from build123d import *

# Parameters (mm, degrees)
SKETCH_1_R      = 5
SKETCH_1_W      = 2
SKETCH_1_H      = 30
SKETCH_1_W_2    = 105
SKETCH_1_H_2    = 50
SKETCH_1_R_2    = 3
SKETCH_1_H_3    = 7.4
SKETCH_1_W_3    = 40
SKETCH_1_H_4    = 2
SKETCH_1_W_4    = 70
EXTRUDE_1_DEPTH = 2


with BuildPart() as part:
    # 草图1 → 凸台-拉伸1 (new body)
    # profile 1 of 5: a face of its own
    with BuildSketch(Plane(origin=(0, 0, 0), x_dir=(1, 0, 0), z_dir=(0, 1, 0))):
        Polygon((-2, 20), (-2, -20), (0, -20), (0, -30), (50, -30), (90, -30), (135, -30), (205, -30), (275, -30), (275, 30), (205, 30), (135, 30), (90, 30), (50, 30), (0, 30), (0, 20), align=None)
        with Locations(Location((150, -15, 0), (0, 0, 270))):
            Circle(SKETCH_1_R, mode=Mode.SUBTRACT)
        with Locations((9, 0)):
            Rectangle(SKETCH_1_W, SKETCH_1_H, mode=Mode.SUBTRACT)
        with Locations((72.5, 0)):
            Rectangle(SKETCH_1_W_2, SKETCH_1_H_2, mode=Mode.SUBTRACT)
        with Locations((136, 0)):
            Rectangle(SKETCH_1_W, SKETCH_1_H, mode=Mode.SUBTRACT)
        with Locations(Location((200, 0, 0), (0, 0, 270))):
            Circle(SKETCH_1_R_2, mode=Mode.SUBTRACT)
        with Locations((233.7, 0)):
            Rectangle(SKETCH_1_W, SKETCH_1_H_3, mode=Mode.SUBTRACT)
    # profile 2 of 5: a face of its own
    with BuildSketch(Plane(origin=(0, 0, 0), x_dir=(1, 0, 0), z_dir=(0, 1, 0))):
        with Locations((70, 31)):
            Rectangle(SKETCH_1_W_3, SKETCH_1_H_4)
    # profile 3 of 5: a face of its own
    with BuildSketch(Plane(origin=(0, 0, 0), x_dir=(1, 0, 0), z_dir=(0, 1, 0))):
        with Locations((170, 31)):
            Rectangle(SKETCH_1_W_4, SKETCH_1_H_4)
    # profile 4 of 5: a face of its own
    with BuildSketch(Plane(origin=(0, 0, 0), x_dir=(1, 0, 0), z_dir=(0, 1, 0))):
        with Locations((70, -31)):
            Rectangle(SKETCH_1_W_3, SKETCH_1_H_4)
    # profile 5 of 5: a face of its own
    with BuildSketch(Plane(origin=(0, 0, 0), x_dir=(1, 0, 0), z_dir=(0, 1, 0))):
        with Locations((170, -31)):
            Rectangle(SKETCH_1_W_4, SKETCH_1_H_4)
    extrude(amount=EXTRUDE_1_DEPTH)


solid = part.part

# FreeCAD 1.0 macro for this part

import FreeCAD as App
import Part
import Sketcher
Q = App.Units.Quantity


def add_polygon(sketch, points):
    """Adds a closed chain of lines whose ends are joined by coincident constraints."""
    first, n = sketch.GeometryCount, len(points)
    for a, b in zip(points, points[1:] + points[:1]):
        sketch.addGeometry(Part.LineSegment(App.Vector(*a, 0), App.Vector(*b, 0)), False)
    for i in range(n):
        sketch.addConstraint(Sketcher.Constraint("Coincident", first + i, 2, first + (i + 1) % n, 1))

doc = App.newDocument("Part")
params = doc.addObject("Spreadsheet::Sheet", "Params")
for row, (alias, value) in enumerate([
    ("sketch1_diameter", "10 mm"),
    ("sketch1_diameter2", "6 mm"),
    ("sketch1_width", "2 mm"),
    ("sketch1_width2", "50 mm"),
    ("sketch1_width3", "40 mm"),
    ("pad1_length", "2 mm"),
], start=1):
    params.set(f"A{row}", alias)
    params.set(f"B{row}", "=" + value)
    params.setAlias(f"B{row}", alias)

body = doc.addObject("PartDesign::Body", "Body")

# Sketch on XZ plane
sketch1 = body.newObject("Sketcher::SketchObject", "Sketch")
sketch1.AttachmentSupport = (doc.getObject("XZ_Plane"), [""])
sketch1.MapMode = "FlatFace"
add_polygon(sketch1, [(-2, -20), (-2, 20), (0, 20), (0, 30), (50, 30), (50, 32), (90, 32), (90, 30), (135, 30), (135, 32), (205, 32), (205, 30), (275, 30), (275, -30), (205, -30), (205, -32), (135, -32), (135, -30), (90, -30), (90, -32), (50, -32), (50, -30), (0, -30), (0, -20)])  # lines 0-23
sketch1.addGeometry(Part.Circle(App.Vector(150, 15, 0), App.Vector(0, 0, 1), 5), False)  # 24
add_polygon(sketch1, [(10, 15), (8, 15), (8, -15), (10, -15)])  # lines 25-28
add_polygon(sketch1, [(125, 25), (20, 25), (20, -25), (125, -25)])  # lines 29-32
add_polygon(sketch1, [(137, 15), (135, 15), (135, -15), (137, -15)])  # lines 33-36
sketch1.addGeometry(Part.Circle(App.Vector(200, 0, 0), App.Vector(0, 0, 1), 3), False)  # 37
add_polygon(sketch1, [(234.7, 3.7), (232.7, 3.7), (232.7, -3.7), (234.7, -3.7)])  # lines 38-41
sketch1.addConstraint([
    Sketcher.Constraint("Vertical", 0),
    Sketcher.Constraint("Horizontal", 1),
    Sketcher.Constraint("Vertical", 2),
    Sketcher.Constraint("Horizontal", 3),
    Sketcher.Constraint("Vertical", 4),
    Sketcher.Constraint("Horizontal", 5),
    Sketcher.Constraint("Vertical", 6),
    Sketcher.Constraint("Horizontal", 7),
    Sketcher.Constraint("Vertical", 8),
    Sketcher.Constraint("Horizontal", 9),
    Sketcher.Constraint("Vertical", 10),
    Sketcher.Constraint("Horizontal", 11),
    Sketcher.Constraint("Vertical", 12),
    Sketcher.Constraint("Horizontal", 13),
    Sketcher.Constraint("Vertical", 14),
    Sketcher.Constraint("Horizontal", 15),
    Sketcher.Constraint("Vertical", 16),
    Sketcher.Constraint("Horizontal", 17),
    Sketcher.Constraint("Vertical", 18),
    Sketcher.Constraint("Horizontal", 19),
    Sketcher.Constraint("Vertical", 20),
    Sketcher.Constraint("Horizontal", 21),
    Sketcher.Constraint("Vertical", 22),
    Sketcher.Constraint("Horizontal", 23),
    Sketcher.Constraint("Horizontal", 25),
    Sketcher.Constraint("Vertical", 26),
    Sketcher.Constraint("Horizontal", 27),
    Sketcher.Constraint("Vertical", 28),
    Sketcher.Constraint("Horizontal", 29),
    Sketcher.Constraint("Vertical", 30),
    Sketcher.Constraint("Horizontal", 31),
    Sketcher.Constraint("Vertical", 32),
    Sketcher.Constraint("Horizontal", 33),
    Sketcher.Constraint("Vertical", 34),
    Sketcher.Constraint("Horizontal", 35),
    Sketcher.Constraint("Vertical", 36),
    Sketcher.Constraint("Horizontal", 38),
    Sketcher.Constraint("Vertical", 39),
    Sketcher.Constraint("Horizontal", 40),
    Sketcher.Constraint("Vertical", 41),
    Sketcher.Constraint("Symmetric", 2, 2, 21, 2, -1, 1),
    Sketcher.Constraint("Symmetric", 10, 2, 13, 2, -1),
    Sketcher.Constraint("Symmetric", 8, 2, 15, 2, -1),
    Sketcher.Constraint("Symmetric", 6, 2, 17, 2, -1),
    Sketcher.Constraint("Symmetric", 4, 2, 19, 2, -1),
    Sketcher.Constraint("Symmetric", 1, 2, 22, 2, -1),
    Sketcher.Constraint("PointOnObject", 37, 3, -1),
    Sketcher.Constraint("Horizontal", 3, 2, 6, 2),
    Sketcher.Constraint("Horizontal", 5, 2, 8, 2),
    Sketcher.Constraint("Horizontal", 7, 2, 10, 2),
    Sketcher.Constraint("Horizontal", 24, 3, 25, 2),
    Sketcher.Constraint("Horizontal", 28, 2, 33, 2),
    Sketcher.Constraint("Horizontal", 27, 2, 34, 2),
    Sketcher.Constraint("Vertical", 16, 2, 33, 2),
    Sketcher.Constraint("Equal", 9, 11),
    Sketcher.Constraint("Equal", 23, 25),
    Sketcher.Constraint("Equal", 27, 33),
    Sketcher.Constraint("Equal", 35, 38),
    Sketcher.Constraint("Equal", 19, 0),
    Sketcher.Constraint("Equal", 40, 4),
    Sketcher.Constraint("Equal", 21, 30),
    Sketcher.Constraint("Diameter", 24, Q("10 mm")),
    Sketcher.Constraint("Diameter", 37, Q("6 mm")),
    Sketcher.Constraint("DistanceX", 1, 1, 1, 2, Q("2 mm")),
    Sketcher.Constraint("DistanceX", 3, 1, 3, 2, Q("50 mm")),
    Sketcher.Constraint("DistanceX", 5, 1, 5, 2, Q("40 mm")),
    Sketcher.Constraint("DistanceX", 7, 1, 7, 2, Q("45 mm")),
    Sketcher.Constraint("DistanceX", 9, 1, 9, 2, Q("70 mm")),
    Sketcher.Constraint("DistanceX", 29, 2, 29, 1, Q("105 mm")),
    Sketcher.Constraint("DistanceY", 2, 1, 2, 2, Q("10 mm")),
    Sketcher.Constraint("DistanceY", 26, 2, 26, 1, Q("30 mm")),
    Sketcher.Constraint("DistanceY", 39, 2, 39, 1, Q("7.4 mm")),
    Sketcher.Constraint("DistanceX", -1, 1, 24, 3, Q("150 mm")),
    Sketcher.Constraint("DistanceY", -1, 1, 24, 3, Q("15 mm")),
    Sketcher.Constraint("DistanceX", -1, 1, 37, 3, Q("200 mm")),
    Sketcher.Constraint("DistanceX", -1, 1, 25, 2, Q("8 mm")),
    Sketcher.Constraint("DistanceX", -1, 1, 29, 2, Q("20 mm")),
    Sketcher.Constraint("DistanceY", -1, 1, 29, 2, Q("25 mm")),
    Sketcher.Constraint("DistanceX", -1, 1, 38, 2, Q("232.7 mm")),
    Sketcher.Constraint("DistanceY", -1, 1, 38, 2, Q("3.7 mm")),
])
sketch1.setExpression("Constraints[101]", "Params.sketch1_diameter")
sketch1.setExpression("Constraints[102]", "Params.sketch1_diameter2")
sketch1.setExpression("Constraints[103]", "Params.sketch1_width")
sketch1.setExpression("Constraints[104]", "Params.sketch1_width2")
sketch1.setExpression("Constraints[105]", "Params.sketch1_width3")
pad1 = body.newObject("PartDesign::Pad", "Pad")
pad1.Profile = sketch1
pad1.setExpression("Length", "Params.pad1_length")
pad1.Reversed = True

doc.recompute()
